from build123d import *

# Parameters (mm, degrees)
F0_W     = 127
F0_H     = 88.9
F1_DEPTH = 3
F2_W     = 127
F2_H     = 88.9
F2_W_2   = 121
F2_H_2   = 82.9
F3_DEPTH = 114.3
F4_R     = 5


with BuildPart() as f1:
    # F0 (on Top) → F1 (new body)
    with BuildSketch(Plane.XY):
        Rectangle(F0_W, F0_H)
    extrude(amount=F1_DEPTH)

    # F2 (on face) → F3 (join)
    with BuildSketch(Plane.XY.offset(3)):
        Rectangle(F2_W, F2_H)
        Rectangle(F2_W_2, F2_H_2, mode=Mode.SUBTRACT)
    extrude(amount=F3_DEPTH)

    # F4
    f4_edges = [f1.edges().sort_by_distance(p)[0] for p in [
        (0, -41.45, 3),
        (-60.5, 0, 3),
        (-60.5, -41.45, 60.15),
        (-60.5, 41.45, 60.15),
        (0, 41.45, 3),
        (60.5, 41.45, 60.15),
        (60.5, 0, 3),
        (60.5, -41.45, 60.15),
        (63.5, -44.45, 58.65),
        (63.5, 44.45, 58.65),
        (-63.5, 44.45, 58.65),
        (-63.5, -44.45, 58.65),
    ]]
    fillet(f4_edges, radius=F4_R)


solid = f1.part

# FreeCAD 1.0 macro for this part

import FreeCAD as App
import Part
import Sketcher
from FreeCAD import Vector


def edges_at(feature, points):
    """Names of the edges that pass closest to the given points."""
    edges = feature.Shape.Edges
    near = lambda p: min(range(len(edges)), key=lambda i: edges[i].distToShape(Part.Vertex(*p))[0])
    return sorted({f"Edge{near(p) + 1}" for p in points})

doc = App.newDocument("Part")
body = doc.addObject("PartDesign::Body", "Body")

# Sketch on XY plane
sketch1 = doc.addObject("Sketcher::SketchObject", "Sketch")
body.addObject(sketch1)
sketch1.AttachmentSupport = (doc.XY_Plane, [""])
sketch1.MapMode = "FlatFace"
sketch1.addGeometry(Part.LineSegment(Vector(-64, 44, 0), Vector(-64, -44, 0)), False)
sketch1.addGeometry(Part.LineSegment(Vector(-64, -44, 0), Vector(64, -44, 0)), False)
sketch1.addGeometry(Part.LineSegment(Vector(64, -44, 0), Vector(64, 44, 0)), False)
sketch1.addGeometry(Part.LineSegment(Vector(64, 44, 0), Vector(-64, 44, 0)), False)
sketch1.addConstraint(Sketcher.Constraint("Coincident", 0, 2, 1, 1))
sketch1.addConstraint(Sketcher.Constraint("Coincident", 1, 2, 2, 1))
sketch1.addConstraint(Sketcher.Constraint("Coincident", 2, 2, 3, 1))
sketch1.addConstraint(Sketcher.Constraint("Coincident", 3, 2, 0, 1))
sketch1.addConstraint(Sketcher.Constraint("Vertical", 0))
sketch1.addConstraint(Sketcher.Constraint("Horizontal", 1))
sketch1.addConstraint(Sketcher.Constraint("Vertical", 2))
sketch1.addConstraint(Sketcher.Constraint("Horizontal", 3))
sketch1.addConstraint(Sketcher.Constraint("Symmetric", 0, 2, 2, 2, -1, 1))
sketch1.addConstraint(Sketcher.Constraint("DistanceX", 1, 1, 1, 2, 127.0))
sketch1.addConstraint(Sketcher.Constraint("DistanceY", 0, 2, 0, 1, 88.9))
pad1 = doc.addObject("PartDesign::Pad", "Pad")
body.addObject(pad1)
pad1.Profile = sketch1
pad1.Length = 3

# Sketch on XY plane
sketch2 = doc.addObject("Sketcher::SketchObject", "Sketch001")
body.addObject(sketch2)
sketch2.AttachmentSupport = (doc.XY_Plane, [""])
sketch2.MapMode = "FlatFace"
sketch2.AttachmentOffset = App.Placement(Vector(0, 0, 3), App.Rotation())
sketch2.addGeometry(Part.LineSegment(Vector(-64, 44, 0), Vector(-64, -44, 0)), False)
sketch2.addGeometry(Part.LineSegment(Vector(-64, -44, 0), Vector(64, -44, 0)), False)
sketch2.addGeometry(Part.LineSegment(Vector(64, -44, 0), Vector(64, 44, 0)), False)
sketch2.addGeometry(Part.LineSegment(Vector(64, 44, 0), Vector(-64, 44, 0)), False)
sketch2.addGeometry(Part.LineSegment(Vector(60, -41, 0), Vector(-60, -41, 0)), False)
sketch2.addGeometry(Part.LineSegment(Vector(-60, -41, 0), Vector(-60, 41, 0)), False)
sketch2.addGeometry(Part.LineSegment(Vector(-60, 41, 0), Vector(60, 41, 0)), False)
sketch2.addGeometry(Part.LineSegment(Vector(60, 41, 0), Vector(60, -41, 0)), False)
sketch2.addConstraint(Sketcher.Constraint("Coincident", 0, 2, 1, 1))
sketch2.addConstraint(Sketcher.Constraint("Coincident", 1, 2, 2, 1))
sketch2.addConstraint(Sketcher.Constraint("Coincident", 2, 2, 3, 1))
sketch2.addConstraint(Sketcher.Constraint("Coincident", 3, 2, 0, 1))
sketch2.addConstraint(Sketcher.Constraint("Coincident", 4, 2, 5, 1))
sketch2.addConstraint(Sketcher.Constraint("Coincident", 5, 2, 6, 1))
sketch2.addConstraint(Sketcher.Constraint("Coincident", 6, 2, 7, 1))
sketch2.addConstraint(Sketcher.Constraint("Coincident", 7, 2, 4, 1))
sketch2.addConstraint(Sketcher.Constraint("Vertical", 0))
sketch2.addConstraint(Sketcher.Constraint("Horizontal", 1))
sketch2.addConstraint(Sketcher.Constraint("Vertical", 2))
sketch2.addConstraint(Sketcher.Constraint("Horizontal", 3))
sketch2.addConstraint(Sketcher.Constraint("Horizontal", 4))
sketch2.addConstraint(Sketcher.Constraint("Vertical", 5))
sketch2.addConstraint(Sketcher.Constraint("Horizontal", 6))
sketch2.addConstraint(Sketcher.Constraint("Vertical", 7))
sketch2.addConstraint(Sketcher.Constraint("Symmetric", 0, 2, 2, 2, -1, 1))
sketch2.addConstraint(Sketcher.Constraint("Symmetric", 4, 2, 6, 2, -1, 1))
sketch2.addConstraint(Sketcher.Constraint("DistanceX", 1, 1, 1, 2, 127.0))
sketch2.addConstraint(Sketcher.Constraint("DistanceX", 4, 2, 4, 1, 121.0))
sketch2.addConstraint(Sketcher.Constraint("DistanceY", 0, 2, 0, 1, 88.9))
sketch2.addConstraint(Sketcher.Constraint("DistanceY", 5, 1, 5, 2, 82.9))
pad2 = doc.addObject("PartDesign::Pad", "Pad001")
body.addObject(pad2)
pad2.Profile = sketch2
pad2.Length = 114.3
doc.recompute()

fillet = doc.addObject("PartDesign::Fillet", "Fillet")
body.addObject(fillet)
fillet.Base = (pad2, edges_at(pad2, [
    (0, -41.45, 3),
    (-60.5, 0, 3),
    (-60.5, -41.45, 60.15),
    (-60.5, 41.45, 60.15),
    (0, 41.45, 3),
    (60.5, 41.45, 60.15),
    (60.5, 0, 3),
    (60.5, -41.45, 60.15),
    (63.5, -44.45, 58.65),
    (63.5, 44.45, 58.65),
    (-63.5, 44.45, 58.65),
    (-63.5, -44.45, 58.65),
]))
fillet.Radius = 5

doc.recompute()
